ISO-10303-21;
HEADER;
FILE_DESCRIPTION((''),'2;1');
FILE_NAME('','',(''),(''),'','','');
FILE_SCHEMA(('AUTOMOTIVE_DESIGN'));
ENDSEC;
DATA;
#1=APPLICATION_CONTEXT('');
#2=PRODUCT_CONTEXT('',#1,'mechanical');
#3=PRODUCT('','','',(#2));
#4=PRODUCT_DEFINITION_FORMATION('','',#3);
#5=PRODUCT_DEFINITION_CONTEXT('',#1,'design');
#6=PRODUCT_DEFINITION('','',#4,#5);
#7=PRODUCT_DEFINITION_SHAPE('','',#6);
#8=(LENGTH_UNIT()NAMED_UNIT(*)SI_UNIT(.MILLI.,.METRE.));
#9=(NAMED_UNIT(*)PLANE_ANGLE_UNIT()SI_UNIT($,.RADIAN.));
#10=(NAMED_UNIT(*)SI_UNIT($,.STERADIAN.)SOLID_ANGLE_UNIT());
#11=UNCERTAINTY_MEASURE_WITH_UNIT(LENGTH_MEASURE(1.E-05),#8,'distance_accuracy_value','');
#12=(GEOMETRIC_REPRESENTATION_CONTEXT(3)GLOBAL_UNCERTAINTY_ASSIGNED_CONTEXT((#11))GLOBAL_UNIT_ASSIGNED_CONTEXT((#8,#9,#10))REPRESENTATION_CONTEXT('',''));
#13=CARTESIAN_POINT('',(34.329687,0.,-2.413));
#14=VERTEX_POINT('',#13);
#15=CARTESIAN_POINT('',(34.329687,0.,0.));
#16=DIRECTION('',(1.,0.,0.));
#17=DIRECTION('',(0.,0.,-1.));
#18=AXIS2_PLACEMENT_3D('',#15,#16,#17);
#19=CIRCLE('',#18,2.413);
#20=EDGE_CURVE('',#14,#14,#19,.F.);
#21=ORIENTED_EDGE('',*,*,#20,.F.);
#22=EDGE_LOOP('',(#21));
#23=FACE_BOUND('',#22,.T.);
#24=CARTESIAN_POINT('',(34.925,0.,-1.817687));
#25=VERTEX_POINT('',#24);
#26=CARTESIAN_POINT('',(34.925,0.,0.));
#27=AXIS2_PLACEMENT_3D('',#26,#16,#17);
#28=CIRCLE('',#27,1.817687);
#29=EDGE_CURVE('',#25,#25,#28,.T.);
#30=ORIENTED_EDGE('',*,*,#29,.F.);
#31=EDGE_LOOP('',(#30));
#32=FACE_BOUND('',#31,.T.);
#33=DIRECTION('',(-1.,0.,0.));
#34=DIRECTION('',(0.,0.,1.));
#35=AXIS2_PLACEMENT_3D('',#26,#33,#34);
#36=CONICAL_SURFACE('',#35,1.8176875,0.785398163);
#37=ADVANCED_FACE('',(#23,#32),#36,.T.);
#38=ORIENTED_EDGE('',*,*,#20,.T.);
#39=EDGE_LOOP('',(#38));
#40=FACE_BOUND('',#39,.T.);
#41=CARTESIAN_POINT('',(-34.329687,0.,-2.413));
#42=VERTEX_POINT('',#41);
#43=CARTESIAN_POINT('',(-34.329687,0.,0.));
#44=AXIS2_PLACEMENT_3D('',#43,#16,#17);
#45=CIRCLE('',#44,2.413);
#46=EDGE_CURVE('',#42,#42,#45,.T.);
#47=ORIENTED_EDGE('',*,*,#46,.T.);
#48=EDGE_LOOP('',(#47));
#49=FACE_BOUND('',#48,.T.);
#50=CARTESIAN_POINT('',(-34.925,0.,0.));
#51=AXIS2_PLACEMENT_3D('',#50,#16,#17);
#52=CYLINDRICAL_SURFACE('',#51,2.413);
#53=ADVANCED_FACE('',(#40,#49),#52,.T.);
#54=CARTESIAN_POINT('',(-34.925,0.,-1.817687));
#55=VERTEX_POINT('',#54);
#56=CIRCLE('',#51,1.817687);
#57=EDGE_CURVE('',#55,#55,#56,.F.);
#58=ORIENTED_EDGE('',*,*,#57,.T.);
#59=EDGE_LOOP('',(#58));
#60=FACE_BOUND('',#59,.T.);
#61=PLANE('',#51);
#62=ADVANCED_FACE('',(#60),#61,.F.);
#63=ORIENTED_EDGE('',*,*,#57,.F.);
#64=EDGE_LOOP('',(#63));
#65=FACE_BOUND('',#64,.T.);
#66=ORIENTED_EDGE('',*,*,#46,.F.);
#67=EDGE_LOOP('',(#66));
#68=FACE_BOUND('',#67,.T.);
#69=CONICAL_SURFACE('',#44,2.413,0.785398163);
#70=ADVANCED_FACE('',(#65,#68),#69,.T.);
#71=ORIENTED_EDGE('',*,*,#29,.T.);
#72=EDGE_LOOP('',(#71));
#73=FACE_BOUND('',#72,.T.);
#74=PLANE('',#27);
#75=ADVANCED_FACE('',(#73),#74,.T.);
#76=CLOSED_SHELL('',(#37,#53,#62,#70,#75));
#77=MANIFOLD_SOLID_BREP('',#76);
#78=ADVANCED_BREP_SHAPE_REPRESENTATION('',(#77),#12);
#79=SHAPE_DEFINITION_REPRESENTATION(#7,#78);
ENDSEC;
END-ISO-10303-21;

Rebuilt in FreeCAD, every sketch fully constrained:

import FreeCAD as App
import Part
import Sketcher

V = App.Vector
Q = App.Units.Quantity


def edges_at(feature, points):
    """Names of the edges that pass closest to the given points."""
    edges = feature.Shape.Edges
    near = lambda p: min(range(len(edges)), key=lambda i: edges[i].distToShape(Part.Vertex(*p))[0])
    return sorted({f"Edge{near(p) + 1}" for p in points})

doc = App.newDocument("Part")
body = doc.addObject("PartDesign::Body", "Body")

# Sketch on YZ plane
sketch1 = doc.addObject("Sketcher::SketchObject", "Sketch")
body.addObject(sketch1)
sketch1.AttachmentSupport = (doc.YZ_Plane, [""])
sketch1.MapMode = "FlatFace"
sketch1.addGeometry(Part.Circle(V(0, 0, 0), V(0, 0, 1), 2.4), False)
sketch1.addConstraint(Sketcher.Constraint("Coincident", 0, 3, -1, 1))
sketch1.addConstraint(Sketcher.Constraint("Diameter", 0, Q("0.19 in")))
pad1 = doc.addObject("PartDesign::Pad", "Pad")
body.addObject(pad1)
pad1.Profile = sketch1
pad1.Type = "TwoLengths"
pad1.Length = Q("1.375 in")
pad1.Length2 = Q("1.375 in")
doc.recompute()

chamfer = doc.addObject("PartDesign::Chamfer", "Chamfer")
body.addObject(chamfer)
chamfer.Base = (pad1, edges_at(pad1, [(-34.925, 0, 2.413), (34.925, 0, 2.413)]))
chamfer.Size = 0.595313

doc.recompute()
